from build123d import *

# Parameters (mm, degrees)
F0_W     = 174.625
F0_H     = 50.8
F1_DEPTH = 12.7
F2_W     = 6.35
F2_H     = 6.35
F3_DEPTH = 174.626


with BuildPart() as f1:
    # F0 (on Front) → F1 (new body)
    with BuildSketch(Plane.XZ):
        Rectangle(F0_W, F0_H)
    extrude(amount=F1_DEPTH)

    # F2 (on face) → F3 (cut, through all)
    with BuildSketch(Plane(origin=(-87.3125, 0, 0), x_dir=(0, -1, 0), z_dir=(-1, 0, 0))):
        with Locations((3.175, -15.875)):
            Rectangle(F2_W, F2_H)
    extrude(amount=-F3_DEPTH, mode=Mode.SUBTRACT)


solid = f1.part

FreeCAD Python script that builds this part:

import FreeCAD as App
import Part
import Sketcher

V = App.Vector
Q = App.Units.Quantity


def add_polygon(sketch, points):
    """Adds a closed chain of lines whose ends are joined by coincident constraints."""
    first, n = sketch.GeometryCount, len(points)
    for a, b in zip(points, points[1:] + points[:1]):
        sketch.addGeometry(Part.LineSegment(App.Vector(*a, 0), App.Vector(*b, 0)), False)
    for i in range(n):
        sketch.addConstraint(Sketcher.Constraint("Coincident", first + i, 2, first + (i + 1) % n, 1))

doc = App.newDocument("Part")
params = doc.addObject("Spreadsheet::Sheet", "Params")
for row, (alias, value) in enumerate([
    ("sketch1_height", "2 in"),
    ("sketch1_width", "6.875 in"),
    ("pad1_length", "0.5 in"),
    ("sketch2_width", "0.25 in"),
], start=1):
    params.set(f"A{row}", alias)
    params.set(f"B{row}", "=" + value)
    params.setAlias(f"B{row}", alias)

body = doc.addObject("PartDesign::Body", "Body")

sketch1 = body.newObject("Sketcher::SketchObject", "Sketch")
sketch1.AttachmentSupport = (doc.getObject("XZ_Plane"), [""])
sketch1.MapMode = "FlatFace"
add_polygon(sketch1, [(-87, 25), (-87, -25), (87, -25), (87, 25)])
sketch1.addConstraint([
    Sketcher.Constraint("Vertical", 0),
    Sketcher.Constraint("Horizontal", 1),
    Sketcher.Constraint("Vertical", 2),
    Sketcher.Constraint("Horizontal", 3),
    Sketcher.Constraint("Symmetric", 0, 2, 2, 2, -1, 1),
    Sketcher.Constraint("DistanceY", 0, 2, 0, 1, Q("2 in")),
    Sketcher.Constraint("DistanceX", 1, 1, 1, 2, Q("6.875 in")),
])
sketch1.setExpression("Constraints[9]", "Params.sketch1_height")
sketch1.setExpression("Constraints[10]", "Params.sketch1_width")
pad1 = body.newObject("PartDesign::Pad", "Pad")
pad1.Profile = sketch1
pad1.setExpression("Length", "Params.pad1_length")

sketch2 = body.newObject("Sketcher::SketchObject", "Sketch001")
sketch2.AttachmentSupport = (doc.getObject("YZ_Plane"), [""])
sketch2.MapMode = "FlatFace"
sketch2.AttachmentOffset = App.Placement(V(0, 0, -3.4375 * 25.4), App.Rotation())
add_polygon(sketch2, [(0, -13), (0, -19), (-6, -19), (-6, -13)])
sketch2.addConstraint([
    Sketcher.Constraint("Vertical", 0),
    Sketcher.Constraint("Horizontal", 1),
    Sketcher.Constraint("Vertical", 2),
    Sketcher.Constraint("Horizontal", 3),
    Sketcher.Constraint("PointOnObject", 0, 2, -2),
    Sketcher.Constraint("Equal", 3, 0),
    Sketcher.Constraint("DistanceX", 1, 2, 1, 1, Q("0.25 in")),
    Sketcher.Constraint("DistanceY", 2, 2, -1, 1, Q("0.5 in")),
])
sketch2.setExpression("Constraints[10]", "Params.sketch2_width")
pocket1 = body.newObject("PartDesign::Pocket", "Pocket")
pocket1.Profile = sketch2
pocket1.Type = "ThroughAll"
pocket1.Reversed = True

doc.recompute()
